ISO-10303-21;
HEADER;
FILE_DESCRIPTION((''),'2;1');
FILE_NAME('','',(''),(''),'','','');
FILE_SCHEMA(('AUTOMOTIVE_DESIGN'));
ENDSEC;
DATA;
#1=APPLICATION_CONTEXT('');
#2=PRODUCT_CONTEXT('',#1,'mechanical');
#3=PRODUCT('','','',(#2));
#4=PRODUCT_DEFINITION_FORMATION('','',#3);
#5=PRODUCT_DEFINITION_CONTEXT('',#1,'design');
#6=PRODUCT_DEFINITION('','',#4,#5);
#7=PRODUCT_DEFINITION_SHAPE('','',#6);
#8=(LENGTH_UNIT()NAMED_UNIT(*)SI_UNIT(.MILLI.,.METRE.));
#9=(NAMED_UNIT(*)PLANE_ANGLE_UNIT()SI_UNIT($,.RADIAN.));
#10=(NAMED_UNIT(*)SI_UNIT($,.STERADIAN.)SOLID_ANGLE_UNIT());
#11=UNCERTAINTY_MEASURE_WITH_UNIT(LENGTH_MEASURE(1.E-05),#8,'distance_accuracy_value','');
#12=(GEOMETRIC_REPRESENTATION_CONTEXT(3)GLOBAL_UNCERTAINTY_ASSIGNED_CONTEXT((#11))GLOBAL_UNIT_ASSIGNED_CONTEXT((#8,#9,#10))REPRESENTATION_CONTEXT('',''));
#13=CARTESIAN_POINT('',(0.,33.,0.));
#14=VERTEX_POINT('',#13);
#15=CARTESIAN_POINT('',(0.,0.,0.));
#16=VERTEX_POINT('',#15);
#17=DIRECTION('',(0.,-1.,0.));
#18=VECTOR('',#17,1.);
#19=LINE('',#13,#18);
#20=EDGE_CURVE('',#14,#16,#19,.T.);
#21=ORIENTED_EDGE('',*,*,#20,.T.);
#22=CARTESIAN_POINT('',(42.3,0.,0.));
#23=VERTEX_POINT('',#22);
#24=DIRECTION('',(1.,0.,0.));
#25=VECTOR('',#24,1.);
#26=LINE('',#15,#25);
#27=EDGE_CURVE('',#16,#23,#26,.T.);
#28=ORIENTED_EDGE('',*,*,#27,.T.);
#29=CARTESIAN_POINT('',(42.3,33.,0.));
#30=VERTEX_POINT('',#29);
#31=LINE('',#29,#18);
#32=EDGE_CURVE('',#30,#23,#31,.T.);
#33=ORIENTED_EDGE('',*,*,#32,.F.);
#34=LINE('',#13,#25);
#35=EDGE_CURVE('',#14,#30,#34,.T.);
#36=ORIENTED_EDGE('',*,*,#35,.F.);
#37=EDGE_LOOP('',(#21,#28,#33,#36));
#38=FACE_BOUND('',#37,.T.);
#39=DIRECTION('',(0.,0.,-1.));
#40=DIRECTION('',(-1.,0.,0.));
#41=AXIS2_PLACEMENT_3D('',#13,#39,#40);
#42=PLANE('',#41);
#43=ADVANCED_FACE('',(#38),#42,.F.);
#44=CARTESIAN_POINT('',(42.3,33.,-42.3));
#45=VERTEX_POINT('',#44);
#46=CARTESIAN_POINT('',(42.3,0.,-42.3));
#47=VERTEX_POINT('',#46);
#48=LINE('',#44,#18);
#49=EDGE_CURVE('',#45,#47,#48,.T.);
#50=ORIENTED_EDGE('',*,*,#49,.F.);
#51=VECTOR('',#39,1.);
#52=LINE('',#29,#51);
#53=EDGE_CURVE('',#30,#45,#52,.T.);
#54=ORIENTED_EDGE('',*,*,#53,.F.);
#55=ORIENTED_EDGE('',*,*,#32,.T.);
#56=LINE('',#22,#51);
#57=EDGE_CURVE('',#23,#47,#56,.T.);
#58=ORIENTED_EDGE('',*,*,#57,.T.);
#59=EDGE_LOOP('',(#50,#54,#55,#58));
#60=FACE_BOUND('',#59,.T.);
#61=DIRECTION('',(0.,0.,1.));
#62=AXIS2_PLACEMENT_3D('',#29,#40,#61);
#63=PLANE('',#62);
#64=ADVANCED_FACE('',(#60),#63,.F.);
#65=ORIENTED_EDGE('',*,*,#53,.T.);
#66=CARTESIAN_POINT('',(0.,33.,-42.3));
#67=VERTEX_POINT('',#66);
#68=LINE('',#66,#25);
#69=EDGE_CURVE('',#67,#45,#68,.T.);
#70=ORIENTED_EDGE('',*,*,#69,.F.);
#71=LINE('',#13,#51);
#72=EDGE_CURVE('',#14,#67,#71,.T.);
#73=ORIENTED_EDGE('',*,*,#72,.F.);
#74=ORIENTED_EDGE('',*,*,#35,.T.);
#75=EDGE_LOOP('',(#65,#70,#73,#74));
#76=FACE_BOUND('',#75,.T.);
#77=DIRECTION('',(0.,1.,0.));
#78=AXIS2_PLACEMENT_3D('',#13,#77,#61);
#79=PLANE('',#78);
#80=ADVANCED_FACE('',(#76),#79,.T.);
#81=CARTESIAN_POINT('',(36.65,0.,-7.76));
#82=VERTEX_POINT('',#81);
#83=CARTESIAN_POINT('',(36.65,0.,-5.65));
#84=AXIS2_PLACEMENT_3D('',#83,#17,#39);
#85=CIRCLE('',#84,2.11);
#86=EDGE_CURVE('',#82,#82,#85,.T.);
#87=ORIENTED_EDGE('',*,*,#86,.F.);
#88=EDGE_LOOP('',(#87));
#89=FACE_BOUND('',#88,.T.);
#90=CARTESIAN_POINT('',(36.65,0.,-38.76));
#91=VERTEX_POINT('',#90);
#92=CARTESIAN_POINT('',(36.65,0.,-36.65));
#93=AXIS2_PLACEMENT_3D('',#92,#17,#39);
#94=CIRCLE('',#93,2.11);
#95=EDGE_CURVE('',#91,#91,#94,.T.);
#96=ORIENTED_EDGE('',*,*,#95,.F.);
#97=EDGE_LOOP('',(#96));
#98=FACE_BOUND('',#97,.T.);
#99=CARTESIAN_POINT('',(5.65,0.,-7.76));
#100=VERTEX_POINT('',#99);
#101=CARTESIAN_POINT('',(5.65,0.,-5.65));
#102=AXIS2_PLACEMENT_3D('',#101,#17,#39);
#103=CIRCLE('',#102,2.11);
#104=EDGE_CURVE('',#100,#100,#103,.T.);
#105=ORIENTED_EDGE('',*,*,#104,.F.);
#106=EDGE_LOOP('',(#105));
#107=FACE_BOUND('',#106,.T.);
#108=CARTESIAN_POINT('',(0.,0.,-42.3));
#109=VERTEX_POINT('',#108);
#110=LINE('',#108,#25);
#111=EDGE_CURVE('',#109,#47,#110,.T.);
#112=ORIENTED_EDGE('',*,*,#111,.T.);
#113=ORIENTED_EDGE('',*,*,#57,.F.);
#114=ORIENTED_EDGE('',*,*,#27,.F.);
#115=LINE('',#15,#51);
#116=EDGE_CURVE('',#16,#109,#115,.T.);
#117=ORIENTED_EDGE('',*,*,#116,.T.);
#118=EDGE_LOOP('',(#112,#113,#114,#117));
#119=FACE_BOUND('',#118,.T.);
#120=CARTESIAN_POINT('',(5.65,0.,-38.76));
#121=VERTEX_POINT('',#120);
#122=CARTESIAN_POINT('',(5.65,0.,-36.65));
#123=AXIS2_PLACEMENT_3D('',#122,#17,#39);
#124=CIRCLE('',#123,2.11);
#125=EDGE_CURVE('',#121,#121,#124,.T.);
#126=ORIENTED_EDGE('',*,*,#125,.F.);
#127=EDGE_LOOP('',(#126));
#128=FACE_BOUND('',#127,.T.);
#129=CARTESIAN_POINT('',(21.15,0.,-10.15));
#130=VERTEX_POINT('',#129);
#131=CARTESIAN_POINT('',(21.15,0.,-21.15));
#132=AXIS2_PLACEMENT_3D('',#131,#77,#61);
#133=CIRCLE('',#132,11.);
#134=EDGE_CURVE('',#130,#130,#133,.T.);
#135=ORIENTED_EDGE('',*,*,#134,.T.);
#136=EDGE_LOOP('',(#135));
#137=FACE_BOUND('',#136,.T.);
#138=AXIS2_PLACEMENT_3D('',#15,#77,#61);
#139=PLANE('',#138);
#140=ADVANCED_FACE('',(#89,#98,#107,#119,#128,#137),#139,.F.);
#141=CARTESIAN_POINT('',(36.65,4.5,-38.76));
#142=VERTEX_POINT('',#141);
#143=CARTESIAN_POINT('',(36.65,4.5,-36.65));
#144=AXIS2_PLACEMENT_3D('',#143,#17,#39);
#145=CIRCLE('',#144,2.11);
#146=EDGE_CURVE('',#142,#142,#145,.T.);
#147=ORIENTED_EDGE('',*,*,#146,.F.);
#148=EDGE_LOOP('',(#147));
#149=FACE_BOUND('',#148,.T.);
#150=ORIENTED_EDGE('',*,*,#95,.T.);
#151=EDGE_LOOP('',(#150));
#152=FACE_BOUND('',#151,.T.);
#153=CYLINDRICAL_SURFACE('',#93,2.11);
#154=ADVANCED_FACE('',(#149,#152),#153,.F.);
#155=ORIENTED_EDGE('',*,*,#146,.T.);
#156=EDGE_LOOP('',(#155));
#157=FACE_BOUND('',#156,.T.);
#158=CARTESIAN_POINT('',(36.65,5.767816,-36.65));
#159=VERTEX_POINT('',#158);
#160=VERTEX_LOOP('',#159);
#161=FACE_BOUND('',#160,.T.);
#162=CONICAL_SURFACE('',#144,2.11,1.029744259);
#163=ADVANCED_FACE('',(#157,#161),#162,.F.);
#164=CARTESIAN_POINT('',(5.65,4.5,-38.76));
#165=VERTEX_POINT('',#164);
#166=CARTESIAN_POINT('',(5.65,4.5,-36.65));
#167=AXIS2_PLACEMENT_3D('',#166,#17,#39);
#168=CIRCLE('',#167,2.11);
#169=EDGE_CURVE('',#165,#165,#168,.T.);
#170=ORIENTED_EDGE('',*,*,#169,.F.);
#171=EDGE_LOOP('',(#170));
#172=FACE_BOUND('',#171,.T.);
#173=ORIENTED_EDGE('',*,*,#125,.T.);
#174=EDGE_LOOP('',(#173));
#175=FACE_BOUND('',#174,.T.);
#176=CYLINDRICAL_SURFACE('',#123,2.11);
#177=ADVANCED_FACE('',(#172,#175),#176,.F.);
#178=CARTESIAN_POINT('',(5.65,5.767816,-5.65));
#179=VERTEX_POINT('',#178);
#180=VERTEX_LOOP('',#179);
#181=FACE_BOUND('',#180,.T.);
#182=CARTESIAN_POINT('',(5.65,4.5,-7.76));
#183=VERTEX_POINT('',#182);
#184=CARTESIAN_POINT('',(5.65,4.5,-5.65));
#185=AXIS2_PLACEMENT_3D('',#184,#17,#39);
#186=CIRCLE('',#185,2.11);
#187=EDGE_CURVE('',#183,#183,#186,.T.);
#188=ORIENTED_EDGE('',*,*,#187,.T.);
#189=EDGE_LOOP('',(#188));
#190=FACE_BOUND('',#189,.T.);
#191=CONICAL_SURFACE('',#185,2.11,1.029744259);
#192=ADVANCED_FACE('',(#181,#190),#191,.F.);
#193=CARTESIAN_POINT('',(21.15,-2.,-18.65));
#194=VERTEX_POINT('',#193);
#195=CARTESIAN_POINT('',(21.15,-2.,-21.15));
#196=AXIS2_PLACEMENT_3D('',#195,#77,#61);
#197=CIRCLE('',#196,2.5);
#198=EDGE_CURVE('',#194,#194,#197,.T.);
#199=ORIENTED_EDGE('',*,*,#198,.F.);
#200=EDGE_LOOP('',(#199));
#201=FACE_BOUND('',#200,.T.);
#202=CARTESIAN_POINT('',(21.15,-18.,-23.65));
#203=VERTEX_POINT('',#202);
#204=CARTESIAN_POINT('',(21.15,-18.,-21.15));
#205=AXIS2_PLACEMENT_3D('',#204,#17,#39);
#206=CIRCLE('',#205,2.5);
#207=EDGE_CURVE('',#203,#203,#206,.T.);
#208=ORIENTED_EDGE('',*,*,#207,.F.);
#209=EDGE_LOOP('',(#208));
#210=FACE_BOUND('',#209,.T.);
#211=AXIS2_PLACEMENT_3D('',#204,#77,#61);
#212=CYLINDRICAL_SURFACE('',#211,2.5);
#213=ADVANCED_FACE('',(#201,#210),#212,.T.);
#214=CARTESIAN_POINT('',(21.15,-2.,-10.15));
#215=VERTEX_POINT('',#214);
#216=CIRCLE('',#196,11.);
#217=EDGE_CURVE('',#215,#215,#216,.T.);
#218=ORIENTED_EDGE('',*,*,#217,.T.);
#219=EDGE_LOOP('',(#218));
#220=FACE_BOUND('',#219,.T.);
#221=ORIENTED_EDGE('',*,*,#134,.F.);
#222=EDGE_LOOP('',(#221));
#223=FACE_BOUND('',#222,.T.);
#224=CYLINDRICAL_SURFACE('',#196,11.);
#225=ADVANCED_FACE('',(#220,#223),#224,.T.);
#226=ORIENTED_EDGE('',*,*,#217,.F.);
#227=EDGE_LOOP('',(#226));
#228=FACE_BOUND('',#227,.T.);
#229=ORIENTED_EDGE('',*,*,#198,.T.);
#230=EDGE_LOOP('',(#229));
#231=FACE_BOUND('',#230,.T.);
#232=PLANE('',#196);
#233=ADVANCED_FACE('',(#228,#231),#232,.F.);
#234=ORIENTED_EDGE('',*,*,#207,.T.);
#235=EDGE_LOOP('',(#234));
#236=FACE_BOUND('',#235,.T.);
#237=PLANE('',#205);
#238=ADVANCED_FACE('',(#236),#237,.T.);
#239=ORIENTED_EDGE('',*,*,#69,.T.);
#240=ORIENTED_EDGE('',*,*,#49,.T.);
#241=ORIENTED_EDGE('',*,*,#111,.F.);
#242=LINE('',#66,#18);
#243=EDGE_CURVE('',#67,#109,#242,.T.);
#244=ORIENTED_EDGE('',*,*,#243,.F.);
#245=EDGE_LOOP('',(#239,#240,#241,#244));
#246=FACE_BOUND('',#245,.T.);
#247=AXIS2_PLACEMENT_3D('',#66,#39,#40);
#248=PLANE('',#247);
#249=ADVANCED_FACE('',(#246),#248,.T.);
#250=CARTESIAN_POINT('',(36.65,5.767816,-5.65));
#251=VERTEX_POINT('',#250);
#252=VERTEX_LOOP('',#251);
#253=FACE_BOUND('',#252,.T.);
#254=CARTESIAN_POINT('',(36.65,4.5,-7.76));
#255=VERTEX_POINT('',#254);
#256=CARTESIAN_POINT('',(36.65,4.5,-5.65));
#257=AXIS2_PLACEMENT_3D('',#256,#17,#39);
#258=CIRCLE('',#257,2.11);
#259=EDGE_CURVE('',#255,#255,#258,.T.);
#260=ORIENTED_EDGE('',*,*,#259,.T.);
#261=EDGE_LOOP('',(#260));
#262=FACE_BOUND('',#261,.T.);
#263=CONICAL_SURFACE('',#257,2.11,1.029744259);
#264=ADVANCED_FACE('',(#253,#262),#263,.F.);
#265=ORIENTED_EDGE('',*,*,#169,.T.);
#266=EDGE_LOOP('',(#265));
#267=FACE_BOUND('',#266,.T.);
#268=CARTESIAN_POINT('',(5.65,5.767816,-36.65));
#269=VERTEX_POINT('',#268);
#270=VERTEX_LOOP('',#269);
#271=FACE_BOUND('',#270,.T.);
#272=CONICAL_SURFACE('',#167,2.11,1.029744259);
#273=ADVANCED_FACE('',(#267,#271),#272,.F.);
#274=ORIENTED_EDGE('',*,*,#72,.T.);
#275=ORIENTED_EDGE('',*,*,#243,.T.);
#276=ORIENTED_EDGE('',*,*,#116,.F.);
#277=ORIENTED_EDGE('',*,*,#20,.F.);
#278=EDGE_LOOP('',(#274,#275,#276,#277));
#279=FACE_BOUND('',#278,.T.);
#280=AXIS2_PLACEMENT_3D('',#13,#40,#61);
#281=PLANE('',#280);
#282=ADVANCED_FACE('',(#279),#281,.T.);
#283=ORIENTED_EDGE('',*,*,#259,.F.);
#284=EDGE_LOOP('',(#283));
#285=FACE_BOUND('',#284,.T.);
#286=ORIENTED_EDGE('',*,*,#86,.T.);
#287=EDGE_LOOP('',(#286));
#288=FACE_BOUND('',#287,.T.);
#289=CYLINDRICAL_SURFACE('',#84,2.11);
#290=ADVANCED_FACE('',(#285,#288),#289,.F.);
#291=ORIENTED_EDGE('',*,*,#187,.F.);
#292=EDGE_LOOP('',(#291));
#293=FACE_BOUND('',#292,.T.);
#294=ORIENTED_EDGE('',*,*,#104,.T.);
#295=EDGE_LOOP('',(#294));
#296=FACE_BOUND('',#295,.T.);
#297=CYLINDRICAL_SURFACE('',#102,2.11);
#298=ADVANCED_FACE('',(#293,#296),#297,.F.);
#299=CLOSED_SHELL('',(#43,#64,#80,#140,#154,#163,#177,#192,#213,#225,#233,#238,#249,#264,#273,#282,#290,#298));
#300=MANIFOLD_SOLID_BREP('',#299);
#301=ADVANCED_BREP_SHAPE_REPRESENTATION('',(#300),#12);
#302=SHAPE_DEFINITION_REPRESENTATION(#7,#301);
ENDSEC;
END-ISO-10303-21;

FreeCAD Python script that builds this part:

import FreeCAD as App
import Part
import Sketcher


def add_polygon(sketch, points):
    """Adds a closed chain of lines whose ends are joined by coincident constraints."""
    first, n = sketch.GeometryCount, len(points)
    for a, b in zip(points, points[1:] + points[:1]):
        sketch.addGeometry(Part.LineSegment(App.Vector(*a, 0), App.Vector(*b, 0)), False)
    for i in range(n):
        sketch.addConstraint(Sketcher.Constraint("Coincident", first + i, 2, first + (i + 1) % n, 1))

doc = App.newDocument("Part")
body = doc.addObject("PartDesign::Body", "Body")

# Sketch on XZ plane
sketch1 = doc.addObject("Sketcher::SketchObject", "Sketch")
body.addObject(sketch1)
sketch1.AttachmentSupport = (doc.XZ_Plane, [""])
sketch1.MapMode = "FlatFace"
add_polygon(sketch1, [(0, -42.3), (0, 0), (42.3, 0), (42.3, -42.3)])  # lines 0-3
sketch1.addConstraint(Sketcher.Constraint("Vertical", 0))
sketch1.addConstraint(Sketcher.Constraint("Horizontal", 1))
sketch1.addConstraint(Sketcher.Constraint("Vertical", 2))
sketch1.addConstraint(Sketcher.Constraint("Horizontal", 3))
sketch1.addConstraint(Sketcher.Constraint("Coincident", 0, 2, -1, 1))
sketch1.addConstraint(Sketcher.Constraint("Equal", 3, 0))
sketch1.addConstraint(Sketcher.Constraint("DistanceX", 1, 1, 1, 2, 42.3))
pad1 = doc.addObject("PartDesign::Pad", "Pad")
body.addObject(pad1)
pad1.Profile = sketch1
pad1.Length = 33
pad1.Reversed = True

# Sketch on XZ plane
sketch2 = doc.addObject("Sketcher::SketchObject", "Sketch001")
body.addObject(sketch2)
sketch2.AttachmentSupport = (doc.XZ_Plane, [""])
sketch2.MapMode = "FlatFace"
sketch2.addGeometry(Part.Circle(App.Vector(21.15, -21.15, 0), App.Vector(0, 0, 1), 2.5), False)
sketch2.addConstraint(Sketcher.Constraint("Diameter", 0, 5.0))
sketch2.addConstraint(Sketcher.Constraint("DistanceX", -1, 1, 0, 3, 21.15))
sketch2.addConstraint(Sketcher.Constraint("DistanceY", 0, 3, -1, 1, 21.15))
pad2 = doc.addObject("PartDesign::Pad", "Pad001")
body.addObject(pad2)
pad2.Profile = sketch2
pad2.Length = 18

# Sketch on XZ plane
sketch3 = doc.addObject("Sketcher::SketchObject", "Sketch002")
body.addObject(sketch3)
sketch3.AttachmentSupport = (doc.XZ_Plane, [""])
sketch3.MapMode = "FlatFace"
sketch3.addGeometry(Part.Circle(App.Vector(5.65, -36.65, 0), App.Vector(0, 0, 1), 2.11), False)
sketch3.addGeometry(Part.Circle(App.Vector(5.65, -5.65, 0), App.Vector(0, 0, 1), 2.11), False)
sketch3.addGeometry(Part.Circle(App.Vector(36.65, -5.65, 0), App.Vector(0, 0, 1), 2.11), False)
sketch3.addGeometry(Part.Circle(App.Vector(36.65, -36.65, 0), App.Vector(0, 0, 1), 2.11), False)
sketch3.addConstraint(Sketcher.Constraint("Equal", 0, 1))
sketch3.addConstraint(Sketcher.Constraint("Equal", 1, 2))
sketch3.addConstraint(Sketcher.Constraint("Equal", 2, 3))
sketch3.addConstraint(Sketcher.Constraint("Horizontal", 1, 3, 2, 3))
sketch3.addConstraint(Sketcher.Constraint("Horizontal", 0, 3, 3, 3))
sketch3.addConstraint(Sketcher.Constraint("Vertical", 0, 3, 1, 3))
sketch3.addConstraint(Sketcher.Constraint("Vertical", 2, 3, 3, 3))
sketch3.addConstraint(Sketcher.Constraint("Diameter", 0, 4.22))
sketch3.addConstraint(Sketcher.Constraint("DistanceY", 0, 3, 1, 3, 31.0))
sketch3.addConstraint(Sketcher.Constraint("DistanceX", 1, 3, 2, 3, 31.0))
sketch3.addConstraint(Sketcher.Constraint("DistanceX", -1, 1, 0, 3, 5.65))
sketch3.addConstraint(Sketcher.Constraint("DistanceY", 0, 3, -1, 1, 36.65))
doc.recompute()
hole = doc.addObject("PartDesign::Hole", "Hole")
body.addObject(hole)
hole.Profile = sketch3
hole.ThreadType = "None"
hole.Diameter = 4.22
hole.DepthType = "Dimension"
hole.Depth = 4.5
hole.DrillPoint = "Angled"
hole.DrillPointAngle = 118

# Sketch on XZ plane
sketch4 = doc.addObject("Sketcher::SketchObject", "Sketch003")
body.addObject(sketch4)
sketch4.AttachmentSupport = (doc.XZ_Plane, [""])
sketch4.MapMode = "FlatFace"
sketch4.addGeometry(Part.Circle(App.Vector(21.15, -21.15, 0), App.Vector(0, 0, 1), 11), False)
sketch4.addConstraint(Sketcher.Constraint("Diameter", 0, 22.0))
sketch4.addConstraint(Sketcher.Constraint("DistanceX", -1, 1, 0, 3, 21.15))
sketch4.addConstraint(Sketcher.Constraint("DistanceY", 0, 3, -1, 1, 21.15))
pad3 = doc.addObject("PartDesign::Pad", "Pad002")
body.addObject(pad3)
pad3.Profile = sketch4
pad3.Length = 2

doc.recompute()
